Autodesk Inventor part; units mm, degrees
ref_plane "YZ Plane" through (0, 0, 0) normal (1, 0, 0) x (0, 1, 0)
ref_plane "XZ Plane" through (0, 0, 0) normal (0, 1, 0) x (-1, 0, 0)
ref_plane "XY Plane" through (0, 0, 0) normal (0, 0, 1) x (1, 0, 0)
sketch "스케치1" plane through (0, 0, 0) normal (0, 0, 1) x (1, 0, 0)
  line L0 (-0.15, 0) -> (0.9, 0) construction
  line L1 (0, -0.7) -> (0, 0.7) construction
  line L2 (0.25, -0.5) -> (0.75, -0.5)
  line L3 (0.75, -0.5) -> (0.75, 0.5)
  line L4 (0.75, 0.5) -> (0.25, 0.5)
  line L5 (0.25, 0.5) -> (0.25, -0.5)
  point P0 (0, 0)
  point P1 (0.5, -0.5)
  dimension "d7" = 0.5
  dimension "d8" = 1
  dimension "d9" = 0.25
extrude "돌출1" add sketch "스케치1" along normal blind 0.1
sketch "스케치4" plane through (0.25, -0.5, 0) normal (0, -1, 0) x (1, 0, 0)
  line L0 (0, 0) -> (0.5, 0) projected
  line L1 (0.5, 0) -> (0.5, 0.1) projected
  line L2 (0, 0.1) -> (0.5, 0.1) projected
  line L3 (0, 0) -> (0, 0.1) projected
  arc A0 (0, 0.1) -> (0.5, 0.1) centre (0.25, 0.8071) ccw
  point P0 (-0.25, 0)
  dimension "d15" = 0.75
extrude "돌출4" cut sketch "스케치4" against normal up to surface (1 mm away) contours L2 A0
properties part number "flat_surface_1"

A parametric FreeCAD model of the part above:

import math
import FreeCAD as App
import Part
import Sketcher


def add_polygon(sketch, points):
    """Adds a closed chain of lines whose ends are joined by coincident constraints."""
    first, n = sketch.GeometryCount, len(points)
    for a, b in zip(points, points[1:] + points[:1]):
        sketch.addGeometry(Part.LineSegment(App.Vector(*a, 0), App.Vector(*b, 0)), False)
    for i in range(n):
        sketch.addConstraint(Sketcher.Constraint("Coincident", first + i, 2, first + (i + 1) % n, 1))

doc = App.newDocument("Part")
body = doc.addObject("PartDesign::Body", "Body")

sketch1 = doc.addObject("Sketcher::SketchObject", "Sketch")
body.addObject(sketch1)
sketch1.AttachmentSupport = (doc.XY_Plane, [""])
sketch1.MapMode = "FlatFace"
add_polygon(sketch1, [(0.2, 0.5), (0.2, -0.5), (0.8, -0.5), (0.8, 0.5)])
sketch1.addConstraint([
    Sketcher.Constraint("Vertical", 0),
    Sketcher.Constraint("Horizontal", 1),
    Sketcher.Constraint("Vertical", 2),
    Sketcher.Constraint("Horizontal", 3),
    Sketcher.Constraint("DistanceY", 0, 2, 0, 1, 1.0),
    Sketcher.Constraint("DistanceX", 1, 1, 1, 2, 0.5),
    Sketcher.Constraint("DistanceY", 0, 2, -1, 1, 0.5),
    Sketcher.Constraint("DistanceX", -1, 1, 0, 2, 0.25),
])
pad1 = doc.addObject("PartDesign::Pad", "Pad")
body.addObject(pad1)
pad1.Profile = sketch1
pad1.Length = 0.1

sketch2 = doc.addObject("Sketcher::SketchObject", "Sketch001")
body.addObject(sketch2)
sketch2.AttachmentSupport = (doc.XZ_Plane, [""])
sketch2.MapMode = "FlatFace"
sketch2.AttachmentOffset = App.Placement(App.Vector(0, 0, 0.5), App.Rotation())
sketch2.addGeometry([
    Part.LineSegment(App.Vector(0.8, 0.1, 0), App.Vector(0.2, 0.1, 0)),
    Part.ArcOfCircle(Part.Circle(App.Vector(0.5, 0.8, 0), App.Vector(0, 0, 1), 0.7), math.radians(-109), math.radians(-71)),
], False)
sketch2.addConstraint([
    Sketcher.Constraint("Coincident", 0, 1, 1, 2),
    Sketcher.Constraint("Coincident", 1, 1, 0, 2),
    Sketcher.Constraint("Horizontal", 0),
    Sketcher.Constraint("Radius", 1, 0.75),
    Sketcher.Constraint("DistanceX", -1, 1, 0, 1, 0.75),
    Sketcher.Constraint("DistanceX", 0, 2, 0, 1, 0.5),
    Sketcher.Constraint("DistanceY", -1, 1, 0, 1, 0.1),
])
pocket1 = doc.addObject("PartDesign::Pocket", "Pocket")
body.addObject(pocket1)
pocket1.Profile = sketch2
pocket1.Length = 1

doc.recompute()
